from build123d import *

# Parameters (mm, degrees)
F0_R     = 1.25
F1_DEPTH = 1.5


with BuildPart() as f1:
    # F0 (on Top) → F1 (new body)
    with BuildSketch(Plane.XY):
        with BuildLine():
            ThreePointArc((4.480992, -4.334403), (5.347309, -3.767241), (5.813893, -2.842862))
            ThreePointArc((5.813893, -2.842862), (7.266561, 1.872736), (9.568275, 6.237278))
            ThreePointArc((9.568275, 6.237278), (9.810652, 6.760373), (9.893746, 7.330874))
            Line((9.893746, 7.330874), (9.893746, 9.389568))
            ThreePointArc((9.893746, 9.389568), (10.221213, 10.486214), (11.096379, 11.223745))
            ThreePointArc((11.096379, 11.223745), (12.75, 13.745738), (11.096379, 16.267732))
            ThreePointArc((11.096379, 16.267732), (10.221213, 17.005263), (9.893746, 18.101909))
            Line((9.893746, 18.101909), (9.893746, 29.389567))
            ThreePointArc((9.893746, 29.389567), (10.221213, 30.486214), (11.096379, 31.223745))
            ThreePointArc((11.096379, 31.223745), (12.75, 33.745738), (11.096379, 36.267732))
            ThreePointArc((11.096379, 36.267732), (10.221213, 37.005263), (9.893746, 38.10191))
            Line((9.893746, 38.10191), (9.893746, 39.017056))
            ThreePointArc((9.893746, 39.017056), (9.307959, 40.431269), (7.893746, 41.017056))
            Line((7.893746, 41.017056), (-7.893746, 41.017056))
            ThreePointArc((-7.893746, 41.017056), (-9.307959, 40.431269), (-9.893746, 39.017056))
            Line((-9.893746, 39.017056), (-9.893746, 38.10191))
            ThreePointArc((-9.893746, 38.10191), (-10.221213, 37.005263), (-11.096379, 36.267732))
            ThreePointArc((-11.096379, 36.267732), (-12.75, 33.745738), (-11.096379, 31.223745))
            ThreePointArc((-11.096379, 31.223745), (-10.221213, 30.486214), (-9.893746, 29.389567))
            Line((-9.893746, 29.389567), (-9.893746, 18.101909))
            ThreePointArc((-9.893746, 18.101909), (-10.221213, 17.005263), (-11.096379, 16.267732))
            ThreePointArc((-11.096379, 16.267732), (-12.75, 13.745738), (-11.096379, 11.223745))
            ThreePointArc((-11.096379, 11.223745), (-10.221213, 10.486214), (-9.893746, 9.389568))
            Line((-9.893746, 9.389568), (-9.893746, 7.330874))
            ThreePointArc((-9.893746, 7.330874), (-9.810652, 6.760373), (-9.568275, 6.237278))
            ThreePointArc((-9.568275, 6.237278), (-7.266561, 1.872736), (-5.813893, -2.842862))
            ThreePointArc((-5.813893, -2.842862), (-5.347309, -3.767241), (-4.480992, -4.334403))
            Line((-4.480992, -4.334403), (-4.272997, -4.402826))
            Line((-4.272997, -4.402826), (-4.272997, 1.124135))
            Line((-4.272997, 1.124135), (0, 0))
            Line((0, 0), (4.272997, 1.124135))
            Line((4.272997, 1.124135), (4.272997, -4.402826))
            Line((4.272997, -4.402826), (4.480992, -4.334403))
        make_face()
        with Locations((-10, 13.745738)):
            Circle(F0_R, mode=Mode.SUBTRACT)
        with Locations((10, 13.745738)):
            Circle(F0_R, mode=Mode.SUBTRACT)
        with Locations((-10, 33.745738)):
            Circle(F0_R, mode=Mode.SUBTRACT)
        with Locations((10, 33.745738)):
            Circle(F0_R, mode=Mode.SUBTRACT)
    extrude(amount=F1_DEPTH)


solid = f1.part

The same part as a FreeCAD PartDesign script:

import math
import FreeCAD as App
import Part
import Sketcher

doc = App.newDocument("Part")
body = doc.addObject("PartDesign::Body", "Body")

sketch1 = body.newObject("Sketcher::SketchObject", "Sketch")
sketch1.AttachmentSupport = (doc.getObject("XY_Plane"), [""])
sketch1.MapMode = "FlatFace"
sketch1.addGeometry(Part.ArcOfCircle(Part.Circle(App.Vector(3.856012, -2.434558, 0), App.Vector(0, 0, 1), 2.000002), math.radians(-71.79067), math.radians(-11.779839)), False)
sketch1.addGeometry(Part.ArcOfCircle(Part.Circle(App.Vector(31.755765, -8.252859, 0), App.Vector(0, 0, 1), 26.499977), math.radians(146.852374), math.radians(168.220195)), False)
sketch1.addGeometry(Part.ArcOfCircle(Part.Circle(App.Vector(7.893747, 7.330874, 0), App.Vector(0, 0, 1), 1.999999), math.radians(-33.147636), math.radians(0.000005)), False)
sketch1.addGeometry(Part.LineSegment(App.Vector(9.893746, 7.330874, 0), App.Vector(9.893746, 9.389568, 0)), False)
sketch1.addGeometry(Part.ArcOfCircle(Part.Circle(App.Vector(11.893747, 9.389567, 0), App.Vector(0, 0, 1), 2.000001), math.radians(113.495917), math.radians(179.999982)), False)
sketch1.addGeometry(Part.ArcOfCircle(Part.Circle(App.Vector(10.000001, 13.745738, 0), App.Vector(0, 0, 1), 2.749999), math.radians(-66.504118), math.radians(66.504118)), False)
sketch1.addGeometry(Part.ArcOfCircle(Part.Circle(App.Vector(11.893747, 18.10191, 0), App.Vector(0, 0, 1), 2.000001), math.radians(-179.999982), math.radians(-113.495917)), False)
sketch1.addGeometry(Part.LineSegment(App.Vector(9.893746, 18.101909, 0), App.Vector(9.893746, 29.389567, 0)), False)
sketch1.addGeometry(Part.ArcOfCircle(Part.Circle(App.Vector(11.893747, 29.389567, 0), App.Vector(0, 0, 1), 2.000001), math.radians(113.495917), math.radians(180.000011)), False)
sketch1.addGeometry(Part.ArcOfCircle(Part.Circle(App.Vector(10.000001, 33.745739, 0), App.Vector(0, 0, 1), 2.749999), math.radians(-66.504118), math.radians(66.504118)), False)
sketch1.addGeometry(Part.ArcOfCircle(Part.Circle(App.Vector(11.893747, 38.10191, 0), App.Vector(0, 0, 1), 2.000001), math.radians(179.999989), math.radians(246.504083)), False)
sketch1.addGeometry(Part.LineSegment(App.Vector(9.893746, 38.10191, 0), App.Vector(9.893746, 39.017056, 0)), False)
sketch1.addGeometry(Part.ArcOfCircle(Part.Circle(App.Vector(7.893744, 39.017054, 0), App.Vector(0, 0, 1), 2.000002), math.radians(0.000055), math.radians(89.999945)), False)
sketch1.addGeometry(Part.LineSegment(App.Vector(7.893746, 41.017056, 0), App.Vector(-7.893746, 41.017056, 0)), False)
sketch1.addGeometry(Part.ArcOfCircle(Part.Circle(App.Vector(-7.893744, 39.017054, 0), App.Vector(0, 0, 1), 2.000002), math.radians(90.000055), math.radians(179.999945)), False)
sketch1.addGeometry(Part.LineSegment(App.Vector(-9.893746, 39.017056, 0), App.Vector(-9.893746, 38.10191, 0)), False)
sketch1.addGeometry(Part.ArcOfCircle(Part.Circle(App.Vector(-11.893747, 38.10191, 0), App.Vector(0, 0, 1), 2.000001), math.radians(-66.504083), math.radians(0.000011)), False)
sketch1.addGeometry(Part.ArcOfCircle(Part.Circle(App.Vector(-10.000001, 33.745739, 0), App.Vector(0, 0, 1), 2.749999), math.radians(113.495882), math.radians(246.504118)), False)
sketch1.addGeometry(Part.ArcOfCircle(Part.Circle(App.Vector(-11.893747, 29.389567, 0), App.Vector(0, 0, 1), 2.000001), math.radians(-0.000011), math.radians(66.504083)), False)
sketch1.addGeometry(Part.LineSegment(App.Vector(-9.893746, 29.389567, 0), App.Vector(-9.893746, 18.101909, 0)), False)
sketch1.addGeometry(Part.ArcOfCircle(Part.Circle(App.Vector(-11.893747, 18.10191, 0), App.Vector(0, 0, 1), 2.000001), math.radians(-66.504083), math.radians(-0.000018)), False)
sketch1.addGeometry(Part.ArcOfCircle(Part.Circle(App.Vector(-10.000001, 13.745738, 0), App.Vector(0, 0, 1), 2.749999), math.radians(113.495882), math.radians(246.504118)), False)
sketch1.addGeometry(Part.ArcOfCircle(Part.Circle(App.Vector(-11.893747, 9.389567, 0), App.Vector(0, 0, 1), 2.000001), math.radians(0.000018), math.radians(66.504083)), False)
sketch1.addGeometry(Part.LineSegment(App.Vector(-9.893746, 9.389568, 0), App.Vector(-9.893746, 7.330874, 0)), False)
sketch1.addGeometry(Part.ArcOfCircle(Part.Circle(App.Vector(-7.893747, 7.330874, 0), App.Vector(0, 0, 1), 1.999999), math.radians(179.999995), math.radians(213.147636)), False)
sketch1.addGeometry(Part.ArcOfCircle(Part.Circle(App.Vector(-31.755765, -8.252859, 0), App.Vector(0, 0, 1), 26.499977), math.radians(11.779805), math.radians(33.147626)), False)
sketch1.addGeometry(Part.ArcOfCircle(Part.Circle(App.Vector(-3.856012, -2.434558, 0), App.Vector(0, 0, 1), 2.000002), math.radians(-168.220161), math.radians(-108.20933)), False)
sketch1.addGeometry(Part.LineSegment(App.Vector(-4.480992, -4.334403, 0), App.Vector(-4.272997, -4.402826, 0)), False)
sketch1.addGeometry(Part.LineSegment(App.Vector(-4.272997, -4.402826, 0), App.Vector(-4.272997, 1.124135, 0)), False)
sketch1.addGeometry(Part.LineSegment(App.Vector(-4.272997, 1.124135, 0), App.Vector(0, 0, 0)), False)
sketch1.addGeometry(Part.LineSegment(App.Vector(0, 0, 0), App.Vector(4.272997, 1.124135, 0)), False)
sketch1.addGeometry(Part.LineSegment(App.Vector(4.272997, 1.124135, 0), App.Vector(4.272997, -4.402826, 0)), False)
sketch1.addGeometry(Part.LineSegment(App.Vector(4.272997, -4.402826, 0), App.Vector(4.480992, -4.334403, 0)), False)
sketch1.addGeometry(Part.Circle(App.Vector(-10, 13.745738, 0), App.Vector(0, 0, 1), 1.25), False)
sketch1.addGeometry(Part.Circle(App.Vector(10, 13.745738, 0), App.Vector(0, 0, 1), 1.25), False)
sketch1.addGeometry(Part.Circle(App.Vector(-10, 33.745738, 0), App.Vector(0, 0, 1), 1.25), False)
sketch1.addGeometry(Part.Circle(App.Vector(10, 33.745738, 0), App.Vector(0, 0, 1), 1.25), False)
sketch1.addConstraint(Sketcher.Constraint("Tangent", 0, 2, 1, 2))
sketch1.addConstraint(Sketcher.Constraint("Tangent", 1, 1, 2, 1))
sketch1.addConstraint(Sketcher.Constraint("Tangent", 2, 2, 3, 1))
sketch1.addConstraint(Sketcher.Constraint("Tangent", 3, 2, 4, 2))
sketch1.addConstraint(Sketcher.Constraint("Tangent", 4, 1, 5, 1))
sketch1.addConstraint(Sketcher.Constraint("Tangent", 5, 2, 6, 2))
sketch1.addConstraint(Sketcher.Constraint("Tangent", 6, 1, 7, 1))
sketch1.addConstraint(Sketcher.Constraint("Tangent", 7, 2, 8, 2))
sketch1.addConstraint(Sketcher.Constraint("Tangent", 8, 1, 9, 1))
sketch1.addConstraint(Sketcher.Constraint("Tangent", 9, 2, 10, 2))
sketch1.addConstraint(Sketcher.Constraint("Tangent", 10, 1, 11, 1))
sketch1.addConstraint(Sketcher.Constraint("Tangent", 11, 2, 12, 1))
sketch1.addConstraint(Sketcher.Constraint("Tangent", 12, 2, 13, 1))
sketch1.addConstraint(Sketcher.Constraint("Tangent", 13, 2, 14, 1))
sketch1.addConstraint(Sketcher.Constraint("Tangent", 14, 2, 15, 1))
sketch1.addConstraint(Sketcher.Constraint("Tangent", 15, 2, 16, 2))
sketch1.addConstraint(Sketcher.Constraint("Tangent", 16, 1, 17, 1))
sketch1.addConstraint(Sketcher.Constraint("Tangent", 17, 2, 18, 2))
sketch1.addConstraint(Sketcher.Constraint("Tangent", 18, 1, 19, 1))
sketch1.addConstraint(Sketcher.Constraint("Tangent", 19, 2, 20, 2))
sketch1.addConstraint(Sketcher.Constraint("Tangent", 20, 1, 21, 1))
sketch1.addConstraint(Sketcher.Constraint("Tangent", 21, 2, 22, 2))
sketch1.addConstraint(Sketcher.Constraint("Tangent", 22, 1, 23, 1))
sketch1.addConstraint(Sketcher.Constraint("Tangent", 23, 2, 24, 1))
sketch1.addConstraint(Sketcher.Constraint("Tangent", 24, 2, 25, 2))
sketch1.addConstraint(Sketcher.Constraint("Tangent", 25, 1, 26, 1))
sketch1.addConstraint(Sketcher.Constraint("Tangent", 26, 2, 27, 1))
sketch1.addConstraint(Sketcher.Constraint("Coincident", 27, 2, 28, 1))
sketch1.addConstraint(Sketcher.Constraint("Coincident", 28, 2, 29, 1))
sketch1.addConstraint(Sketcher.Constraint("Coincident", 29, 2, 30, 1))
sketch1.addConstraint(Sketcher.Constraint("Coincident", 30, 2, 31, 1))
sketch1.addConstraint(Sketcher.Constraint("Coincident", 31, 2, 32, 1))
sketch1.addConstraint(Sketcher.Constraint("Tangent", 32, 2, 0, 1))
sketch1.addConstraint(Sketcher.Constraint("Vertical", 3))
sketch1.addConstraint(Sketcher.Constraint("Vertical", 7))
sketch1.addConstraint(Sketcher.Constraint("Vertical", 11))
sketch1.addConstraint(Sketcher.Constraint("Horizontal", 13))
sketch1.addConstraint(Sketcher.Constraint("Vertical", 15))
sketch1.addConstraint(Sketcher.Constraint("Vertical", 19))
sketch1.addConstraint(Sketcher.Constraint("Vertical", 23))
sketch1.addConstraint(Sketcher.Constraint("Vertical", 28))
sketch1.addConstraint(Sketcher.Constraint("Vertical", 31))
sketch1.addConstraint(Sketcher.Constraint("Coincident", 29, 2, -1, 1))
sketch1.addConstraint(Sketcher.Constraint("Coincident", 33, 3, 21, 3))
sketch1.addConstraint(Sketcher.Constraint("Coincident", 34, 3, 5, 3))
sketch1.addConstraint(Sketcher.Constraint("Coincident", 35, 3, 17, 3))
sketch1.addConstraint(Sketcher.Constraint("Coincident", 36, 3, 9, 3))
sketch1.addConstraint(Sketcher.Constraint("Equal", 2, 4))
sketch1.addConstraint(Sketcher.Constraint("Equal", 4, 6))
sketch1.addConstraint(Sketcher.Constraint("Equal", 6, 8))
sketch1.addConstraint(Sketcher.Constraint("Equal", 5, 9))
sketch1.addConstraint(Sketcher.Constraint("Equal", 8, 10))
sketch1.addConstraint(Sketcher.Constraint("Equal", 10, 12))
sketch1.addConstraint(Sketcher.Constraint("Equal", 12, 14))
sketch1.addConstraint(Sketcher.Constraint("Equal", 14, 16))
sketch1.addConstraint(Sketcher.Constraint("Equal", 9, 17))
sketch1.addConstraint(Sketcher.Constraint("Equal", 16, 18))
sketch1.addConstraint(Sketcher.Constraint("Equal", 18, 20))
sketch1.addConstraint(Sketcher.Constraint("Equal", 17, 21))
sketch1.addConstraint(Sketcher.Constraint("Equal", 20, 22))
sketch1.addConstraint(Sketcher.Constraint("Equal", 22, 24))
sketch1.addConstraint(Sketcher.Constraint("Equal", 1, 25))
sketch1.addConstraint(Sketcher.Constraint("Equal", 22, 26))
sketch1.addConstraint(Sketcher.Constraint("Equal", 33, 34))
sketch1.addConstraint(Sketcher.Constraint("Equal", 34, 35))
sketch1.addConstraint(Sketcher.Constraint("Equal", 35, 36))
sketch1.addConstraint(Sketcher.Constraint("Symmetric", 10, 3, 16, 3, -2))
sketch1.addConstraint(Sketcher.Constraint("Symmetric", 8, 3, 18, 3, -2))
sketch1.addConstraint(Sketcher.Constraint("Symmetric", 5, 3, 21, 3, -2))
sketch1.addConstraint(Sketcher.Constraint("Symmetric", 2, 3, 24, 3, -2))
sketch1.addConstraint(Sketcher.Constraint("Symmetric", 0, 3, 26, 3, -2))
sketch1.addConstraint(Sketcher.Constraint("Symmetric", 28, 2, 30, 2, -2))
sketch1.addConstraint(Sketcher.Constraint("Symmetric", 26, 2, 32, 2, -2))
sketch1.addConstraint(Sketcher.Constraint("Vertical", 4, 3, 6, 3))
sketch1.addConstraint(Sketcher.Constraint("Vertical", 5, 3, 9, 3))
sketch1.addConstraint(Sketcher.Constraint("Vertical", 8, 3, 10, 3))
sketch1.addConstraint(Sketcher.Constraint("Radius", 2, 1.999999))
sketch1.addConstraint(Sketcher.Constraint("Diameter", 33, 2.5))
sketch1.addConstraint(Sketcher.Constraint("Radius", 5, 2.749999))
sketch1.addConstraint(Sketcher.Constraint("DistanceX", -1, 1, 5, 3, 10.000001))
sketch1.addConstraint(Sketcher.Constraint("DistanceY", 4, 3, 8, 3, 20.0))
sketch1.addConstraint(Sketcher.Constraint("Radius", 1, 26.499977))
sketch1.addConstraint(Sketcher.Constraint("DistanceY", 28, 1, 28, 2, 5.526961))
sketch1.addConstraint(Sketcher.Constraint("DistanceY", 1, 3, 0, 3, 5.818301))
sketch1.addConstraint(Sketcher.Constraint("DistanceX", 25, 1, 26, 2, 1.332901))
sketch1.addConstraint(Sketcher.Constraint("Distance", 27, 0.21896))
sketch1.addConstraint(Sketcher.Constraint("Distance", 29, 4.418391))
sketch1.addConstraint(Sketcher.Constraint("DistanceX", 13, 2, 13, 1, 15.787492))
sketch1.addConstraint(Sketcher.Constraint("DistanceY", 3, 1, 3, 2, 2.058694))
sketch1.addConstraint(Sketcher.Constraint("DistanceY", 11, 1, 11, 2, 0.915146))
sketch1.addConstraint(Sketcher.Constraint("DistanceY", 0, 3, -1, 1, 2.434558))
pad1 = body.newObject("PartDesign::Pad", "Pad")
pad1.Profile = sketch1
pad1.Length = 1.5

doc.recompute()
